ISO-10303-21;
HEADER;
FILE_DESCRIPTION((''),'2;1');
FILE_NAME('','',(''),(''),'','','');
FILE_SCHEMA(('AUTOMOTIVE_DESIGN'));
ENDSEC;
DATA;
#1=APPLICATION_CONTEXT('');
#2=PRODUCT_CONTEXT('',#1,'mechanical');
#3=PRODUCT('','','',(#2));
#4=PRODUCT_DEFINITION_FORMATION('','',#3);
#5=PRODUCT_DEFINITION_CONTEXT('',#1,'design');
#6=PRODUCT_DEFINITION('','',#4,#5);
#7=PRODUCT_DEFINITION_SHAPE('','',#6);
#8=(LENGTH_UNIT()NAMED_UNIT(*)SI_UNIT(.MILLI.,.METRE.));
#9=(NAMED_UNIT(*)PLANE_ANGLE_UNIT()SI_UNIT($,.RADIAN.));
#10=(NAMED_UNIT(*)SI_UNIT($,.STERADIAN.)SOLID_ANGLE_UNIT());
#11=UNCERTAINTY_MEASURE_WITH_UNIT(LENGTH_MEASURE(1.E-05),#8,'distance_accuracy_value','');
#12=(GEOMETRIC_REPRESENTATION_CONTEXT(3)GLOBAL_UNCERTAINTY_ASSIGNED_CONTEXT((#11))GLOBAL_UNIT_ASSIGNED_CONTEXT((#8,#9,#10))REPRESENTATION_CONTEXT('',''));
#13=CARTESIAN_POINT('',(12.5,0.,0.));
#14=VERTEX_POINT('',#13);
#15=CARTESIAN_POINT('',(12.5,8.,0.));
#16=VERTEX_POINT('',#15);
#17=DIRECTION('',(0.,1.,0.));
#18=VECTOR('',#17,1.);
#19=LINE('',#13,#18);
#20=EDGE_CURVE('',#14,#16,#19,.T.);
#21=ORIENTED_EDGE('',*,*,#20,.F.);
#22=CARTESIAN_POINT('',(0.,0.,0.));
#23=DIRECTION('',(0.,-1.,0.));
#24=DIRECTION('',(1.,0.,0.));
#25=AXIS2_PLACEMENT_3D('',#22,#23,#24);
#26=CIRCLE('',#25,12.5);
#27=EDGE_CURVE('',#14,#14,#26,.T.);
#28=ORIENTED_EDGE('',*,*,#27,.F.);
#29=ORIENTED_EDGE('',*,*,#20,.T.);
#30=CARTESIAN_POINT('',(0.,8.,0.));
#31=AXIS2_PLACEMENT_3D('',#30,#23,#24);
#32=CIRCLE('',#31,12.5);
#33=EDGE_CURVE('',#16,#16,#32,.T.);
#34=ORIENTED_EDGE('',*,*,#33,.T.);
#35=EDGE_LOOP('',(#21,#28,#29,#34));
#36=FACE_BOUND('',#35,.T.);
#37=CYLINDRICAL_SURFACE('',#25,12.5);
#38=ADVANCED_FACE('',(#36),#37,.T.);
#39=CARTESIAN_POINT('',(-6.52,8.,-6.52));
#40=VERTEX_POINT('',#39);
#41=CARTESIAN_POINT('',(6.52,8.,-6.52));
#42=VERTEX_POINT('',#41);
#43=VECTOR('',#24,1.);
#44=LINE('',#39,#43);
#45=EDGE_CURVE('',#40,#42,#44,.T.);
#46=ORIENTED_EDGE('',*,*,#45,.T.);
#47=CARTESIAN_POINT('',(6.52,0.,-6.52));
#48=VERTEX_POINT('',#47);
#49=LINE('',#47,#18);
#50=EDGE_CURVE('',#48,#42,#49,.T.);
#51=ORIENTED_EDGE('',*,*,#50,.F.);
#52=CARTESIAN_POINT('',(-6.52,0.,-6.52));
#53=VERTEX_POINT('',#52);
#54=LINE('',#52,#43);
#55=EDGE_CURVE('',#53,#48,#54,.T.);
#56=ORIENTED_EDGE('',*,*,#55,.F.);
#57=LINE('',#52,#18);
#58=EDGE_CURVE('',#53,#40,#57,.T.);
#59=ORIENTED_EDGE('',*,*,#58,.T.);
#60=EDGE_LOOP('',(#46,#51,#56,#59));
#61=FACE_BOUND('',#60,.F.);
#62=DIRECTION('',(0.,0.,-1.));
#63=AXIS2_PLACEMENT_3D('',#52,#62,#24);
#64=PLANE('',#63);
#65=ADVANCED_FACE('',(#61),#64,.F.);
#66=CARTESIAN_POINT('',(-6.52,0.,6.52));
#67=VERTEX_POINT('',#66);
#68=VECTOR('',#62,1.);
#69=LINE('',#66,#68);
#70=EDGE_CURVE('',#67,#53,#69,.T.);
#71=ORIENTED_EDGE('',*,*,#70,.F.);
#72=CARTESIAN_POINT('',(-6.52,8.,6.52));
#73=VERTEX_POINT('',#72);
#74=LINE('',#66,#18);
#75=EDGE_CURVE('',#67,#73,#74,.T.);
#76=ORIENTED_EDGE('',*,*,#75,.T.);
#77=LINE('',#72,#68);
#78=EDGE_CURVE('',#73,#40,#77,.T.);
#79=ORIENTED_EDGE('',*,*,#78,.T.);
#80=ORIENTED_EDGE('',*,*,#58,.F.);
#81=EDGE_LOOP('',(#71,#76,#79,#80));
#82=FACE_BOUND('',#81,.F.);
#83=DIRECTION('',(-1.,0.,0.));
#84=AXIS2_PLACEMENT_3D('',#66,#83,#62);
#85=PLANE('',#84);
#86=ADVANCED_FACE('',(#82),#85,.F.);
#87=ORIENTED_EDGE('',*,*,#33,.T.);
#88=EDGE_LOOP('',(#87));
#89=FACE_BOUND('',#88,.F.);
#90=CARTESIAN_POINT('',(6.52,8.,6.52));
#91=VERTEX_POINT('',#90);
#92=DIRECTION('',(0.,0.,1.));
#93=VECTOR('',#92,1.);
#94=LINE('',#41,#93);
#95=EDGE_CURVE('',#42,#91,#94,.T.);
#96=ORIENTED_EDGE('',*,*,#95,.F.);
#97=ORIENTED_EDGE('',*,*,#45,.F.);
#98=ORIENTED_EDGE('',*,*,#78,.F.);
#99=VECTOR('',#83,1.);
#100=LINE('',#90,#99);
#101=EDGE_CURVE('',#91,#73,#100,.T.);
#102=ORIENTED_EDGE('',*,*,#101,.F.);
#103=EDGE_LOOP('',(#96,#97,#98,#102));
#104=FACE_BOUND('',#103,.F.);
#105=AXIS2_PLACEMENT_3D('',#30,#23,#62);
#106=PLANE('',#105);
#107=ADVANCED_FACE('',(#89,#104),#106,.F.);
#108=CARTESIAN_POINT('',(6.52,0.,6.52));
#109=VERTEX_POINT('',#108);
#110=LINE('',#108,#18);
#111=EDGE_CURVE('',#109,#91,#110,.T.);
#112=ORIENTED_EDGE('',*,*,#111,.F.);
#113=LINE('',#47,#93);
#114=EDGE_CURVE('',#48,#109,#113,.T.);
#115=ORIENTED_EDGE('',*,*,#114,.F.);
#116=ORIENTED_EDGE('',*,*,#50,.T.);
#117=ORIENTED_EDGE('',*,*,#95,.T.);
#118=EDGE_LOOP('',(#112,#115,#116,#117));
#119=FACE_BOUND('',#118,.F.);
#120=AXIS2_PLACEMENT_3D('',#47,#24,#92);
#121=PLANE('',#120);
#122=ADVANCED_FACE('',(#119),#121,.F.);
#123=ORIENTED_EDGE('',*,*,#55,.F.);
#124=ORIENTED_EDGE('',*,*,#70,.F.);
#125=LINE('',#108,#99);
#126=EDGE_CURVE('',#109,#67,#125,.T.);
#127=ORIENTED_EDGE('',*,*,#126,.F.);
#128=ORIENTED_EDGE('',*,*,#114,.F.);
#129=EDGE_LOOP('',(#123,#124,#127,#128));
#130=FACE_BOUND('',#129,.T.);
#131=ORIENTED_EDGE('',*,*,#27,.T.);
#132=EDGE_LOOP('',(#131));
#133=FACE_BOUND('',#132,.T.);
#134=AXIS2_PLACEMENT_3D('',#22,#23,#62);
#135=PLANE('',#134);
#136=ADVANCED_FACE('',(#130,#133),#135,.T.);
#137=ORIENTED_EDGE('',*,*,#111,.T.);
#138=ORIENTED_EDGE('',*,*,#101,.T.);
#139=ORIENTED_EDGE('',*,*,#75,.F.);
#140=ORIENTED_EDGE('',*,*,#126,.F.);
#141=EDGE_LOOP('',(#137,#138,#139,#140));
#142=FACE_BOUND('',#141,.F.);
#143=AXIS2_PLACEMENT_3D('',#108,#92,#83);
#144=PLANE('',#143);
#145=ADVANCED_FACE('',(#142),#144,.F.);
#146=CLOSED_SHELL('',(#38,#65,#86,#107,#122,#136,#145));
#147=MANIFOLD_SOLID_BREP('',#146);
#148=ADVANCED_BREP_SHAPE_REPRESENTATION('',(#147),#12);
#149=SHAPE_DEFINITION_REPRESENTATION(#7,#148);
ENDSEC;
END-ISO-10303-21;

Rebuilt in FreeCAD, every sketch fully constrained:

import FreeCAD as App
import Part
import Sketcher
Q = App.Units.Quantity


def add_polygon(sketch, points):
    """Adds a closed chain of lines whose ends are joined by coincident constraints."""
    first, n = sketch.GeometryCount, len(points)
    for a, b in zip(points, points[1:] + points[:1]):
        sketch.addGeometry(Part.LineSegment(App.Vector(*a, 0), App.Vector(*b, 0)), False)
    for i in range(n):
        sketch.addConstraint(Sketcher.Constraint("Coincident", first + i, 2, first + (i + 1) % n, 1))

doc = App.newDocument("Part")
params = doc.addObject("Spreadsheet::Sheet", "Params")
for row, (alias, value) in enumerate([
    ("sketch1_diameter", "25 mm"),
    ("pad1_length", "8 mm"),
    ("sketch2_width", "13.04 mm"),
    ("pocket1_length", "8 mm"),
], start=1):
    params.set(f"A{row}", alias)
    params.set(f"B{row}", "=" + value)
    params.setAlias(f"B{row}", alias)

body = doc.addObject("PartDesign::Body", "Body")

# Sketch on XZ plane
sketch1 = body.newObject("Sketcher::SketchObject", "Sketch")
sketch1.AttachmentSupport = (doc.getObject("XZ_Plane"), [""])
sketch1.MapMode = "FlatFace"
sketch1.addGeometry(Part.Circle(App.Vector(0, 0, 0), App.Vector(0, 0, 1), 12), False)
sketch1.addConstraint(Sketcher.Constraint("Coincident", 0, 3, -1, 1))
sketch1.addConstraint(Sketcher.Constraint("Diameter", 0, Q("25 mm")))
sketch1.setExpression("Constraints[1]", "Params.sketch1_diameter")
pad1 = body.newObject("PartDesign::Pad", "Pad")
pad1.Profile = sketch1
pad1.setExpression("Length", "Params.pad1_length")
pad1.Reversed = True

# Sketch on XZ plane
sketch2 = body.newObject("Sketcher::SketchObject", "Sketch001")
sketch2.AttachmentSupport = (doc.getObject("XZ_Plane"), [""])
sketch2.MapMode = "FlatFace"
add_polygon(sketch2, [(7, -7), (7, 7), (-7, 7), (-7, -7)])  # lines 0-3
sketch2.addConstraint(Sketcher.Constraint("Vertical", 0))
sketch2.addConstraint(Sketcher.Constraint("Horizontal", 1))
sketch2.addConstraint(Sketcher.Constraint("Vertical", 2))
sketch2.addConstraint(Sketcher.Constraint("Horizontal", 3))
sketch2.addConstraint(Sketcher.Constraint("Symmetric", 0, 2, 2, 2, -1, 1))
sketch2.addConstraint(Sketcher.Constraint("Equal", 3, 0))
sketch2.addConstraint(Sketcher.Constraint("DistanceX", 1, 2, 1, 1, Q("13.04 mm")))
sketch2.setExpression("Constraints[10]", "Params.sketch2_width")
pocket1 = body.newObject("PartDesign::Pocket", "Pocket")
pocket1.Profile = sketch2
pocket1.setExpression("Length", "Params.pocket1_length")

doc.recompute()
